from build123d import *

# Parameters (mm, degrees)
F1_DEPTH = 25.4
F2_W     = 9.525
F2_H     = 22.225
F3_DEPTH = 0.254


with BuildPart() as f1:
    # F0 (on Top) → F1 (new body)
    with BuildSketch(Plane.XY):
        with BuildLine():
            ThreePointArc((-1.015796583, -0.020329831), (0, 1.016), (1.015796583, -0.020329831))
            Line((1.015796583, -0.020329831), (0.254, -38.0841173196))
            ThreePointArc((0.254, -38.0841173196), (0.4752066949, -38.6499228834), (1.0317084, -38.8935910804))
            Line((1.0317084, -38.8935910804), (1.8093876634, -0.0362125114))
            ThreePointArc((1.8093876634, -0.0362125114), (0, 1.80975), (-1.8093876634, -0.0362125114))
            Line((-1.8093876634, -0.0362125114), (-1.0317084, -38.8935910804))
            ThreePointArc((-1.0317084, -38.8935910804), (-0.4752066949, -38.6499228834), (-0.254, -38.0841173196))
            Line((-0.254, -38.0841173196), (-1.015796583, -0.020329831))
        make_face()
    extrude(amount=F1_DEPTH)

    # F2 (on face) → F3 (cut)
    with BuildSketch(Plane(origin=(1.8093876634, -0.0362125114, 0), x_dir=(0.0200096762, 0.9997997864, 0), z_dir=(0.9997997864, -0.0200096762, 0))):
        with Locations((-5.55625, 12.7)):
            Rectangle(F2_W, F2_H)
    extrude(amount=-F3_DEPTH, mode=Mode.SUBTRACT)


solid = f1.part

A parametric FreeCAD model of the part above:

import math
import FreeCAD as App
import Part
import Sketcher
Q = App.Units.Quantity

doc = App.newDocument("Part")
body = doc.addObject("PartDesign::Body", "Body")

# Sketch on XY plane
sketch1 = doc.addObject("Sketcher::SketchObject", "Sketch")
body.addObject(sketch1)
sketch1.AttachmentSupport = (doc.XY_Plane, [""])
sketch1.MapMode = "FlatFace"
sketch1.addGeometry(Part.ArcOfCircle(Part.Circle(App.Vector(0, 0, 0), App.Vector(0, 0, 1), 1), math.radians(-1), math.radians(181)), False)
sketch1.addGeometry(Part.LineSegment(App.Vector(1, 0, 0), App.Vector(0.3, -38.1, 0)), False)
sketch1.addGeometry(Part.ArcOfCircle(Part.Circle(App.Vector(1, -38.1, 0), App.Vector(0, 0, 1), 0.8), math.radians(179), math.radians(269)), False)
sketch1.addGeometry(Part.LineSegment(App.Vector(1, -38.9, 0), App.Vector(1.8, 0, 0)), False)
sketch1.addGeometry(Part.ArcOfCircle(Part.Circle(App.Vector(0, 0, 0), App.Vector(0, 0, 1), 1.8), math.radians(-1), math.radians(181)), False)
sketch1.addGeometry(Part.LineSegment(App.Vector(-1.8, 0, 0), App.Vector(-1, -38.9, 0)), False)
sketch1.addGeometry(Part.ArcOfCircle(Part.Circle(App.Vector(-1, -38.1, 0), App.Vector(0, 0, 1), 0.8), math.radians(-89), math.radians(1)), False)
sketch1.addGeometry(Part.LineSegment(App.Vector(-0.3, -38.1, 0), App.Vector(-1, 0, 0)), False)
sketch1.addConstraint(Sketcher.Constraint("Tangent", 0, 1, 1, 1))
sketch1.addConstraint(Sketcher.Constraint("Tangent", 1, 2, 2, 1))
sketch1.addConstraint(Sketcher.Constraint("Coincident", 2, 2, 3, 1))
sketch1.addConstraint(Sketcher.Constraint("Tangent", 3, 2, 4, 1))
sketch1.addConstraint(Sketcher.Constraint("Tangent", 4, 2, 5, 1))
sketch1.addConstraint(Sketcher.Constraint("Coincident", 5, 2, 6, 1))
sketch1.addConstraint(Sketcher.Constraint("Tangent", 6, 2, 7, 1))
sketch1.addConstraint(Sketcher.Constraint("Tangent", 7, 2, 0, 2))
sketch1.addConstraint(Sketcher.Constraint("Coincident", 0, 3, -1, 1))
sketch1.addConstraint(Sketcher.Constraint("Coincident", 4, 3, -1, 1))
sketch1.addConstraint(Sketcher.Constraint("Equal", 2, 6))
sketch1.addConstraint(Sketcher.Constraint("Symmetric", 2, 3, 6, 3, -2))
sketch1.addConstraint(Sketcher.Constraint("Parallel", 1, 3))
sketch1.addConstraint(Sketcher.Constraint("Parallel", 5, 7))
sketch1.addConstraint(Sketcher.Constraint("Radius", 0, Q("0.04 in")))
sketch1.addConstraint(Sketcher.Constraint("Radius", 2, Q("0.03125 in")))
sketch1.addConstraint(Sketcher.Constraint("DistanceY", 2, 3, -1, 1, Q("1.5 in")))
sketch1.addConstraint(Sketcher.Constraint("DistanceX", -1, 1, 1, 2, Q("0.01 in")))
sketch1.addConstraint(Sketcher.Constraint("Radius", 4, Q("1.80975 mm")))
pad1 = doc.addObject("PartDesign::Pad", "Pad")
body.addObject(pad1)
pad1.Profile = sketch1
pad1.Length = Q("1 in")

# Sketch on an angled plane
sketch2 = doc.addObject("Sketcher::SketchObject", "Sketch001")
body.addObject(sketch2)
sketch2.Placement = App.Placement(App.Vector(1.809388, -0.036213, 0), App.Rotation(App.Vector(0.020009676, 0.999799786, 0), App.Vector(0, 0, 0.999999999), App.Vector(0.999799786, -0.020009676, 0), "ZXY"))
sketch2.addGeometry(Part.LineSegment(App.Vector(-10, 24, 0), App.Vector(-10, 2, 0)), False)
sketch2.addGeometry(Part.LineSegment(App.Vector(-10, 2, 0), App.Vector(-1, 2, 0)), False)
sketch2.addGeometry(Part.LineSegment(App.Vector(-1, 2, 0), App.Vector(-1, 24, 0)), False)
sketch2.addGeometry(Part.LineSegment(App.Vector(-1, 24, 0), App.Vector(-10, 24, 0)), False)
sketch2.addConstraint(Sketcher.Constraint("Coincident", 0, 2, 1, 1))
sketch2.addConstraint(Sketcher.Constraint("Coincident", 1, 2, 2, 1))
sketch2.addConstraint(Sketcher.Constraint("Coincident", 2, 2, 3, 1))
sketch2.addConstraint(Sketcher.Constraint("Coincident", 3, 2, 0, 1))
sketch2.addConstraint(Sketcher.Constraint("Vertical", 0))
sketch2.addConstraint(Sketcher.Constraint("Horizontal", 1))
sketch2.addConstraint(Sketcher.Constraint("Vertical", 2))
sketch2.addConstraint(Sketcher.Constraint("Horizontal", 3))
sketch2.addConstraint(Sketcher.Constraint("DistanceX", 1, 1, 1, 2, Q("0.375 in")))
sketch2.addConstraint(Sketcher.Constraint("DistanceY", 0, 2, 0, 1, Q("0.875 in")))
sketch2.addConstraint(Sketcher.Constraint("DistanceX", 0, 2, -1, 1, Q("0.40625 in")))
sketch2.addConstraint(Sketcher.Constraint("DistanceY", -1, 1, 0, 2, Q("0.0625 in")))
pocket1 = doc.addObject("PartDesign::Pocket", "Pocket")
body.addObject(pocket1)
pocket1.Profile = sketch2
pocket1.Length = Q("0.01 in")

doc.recompute()
